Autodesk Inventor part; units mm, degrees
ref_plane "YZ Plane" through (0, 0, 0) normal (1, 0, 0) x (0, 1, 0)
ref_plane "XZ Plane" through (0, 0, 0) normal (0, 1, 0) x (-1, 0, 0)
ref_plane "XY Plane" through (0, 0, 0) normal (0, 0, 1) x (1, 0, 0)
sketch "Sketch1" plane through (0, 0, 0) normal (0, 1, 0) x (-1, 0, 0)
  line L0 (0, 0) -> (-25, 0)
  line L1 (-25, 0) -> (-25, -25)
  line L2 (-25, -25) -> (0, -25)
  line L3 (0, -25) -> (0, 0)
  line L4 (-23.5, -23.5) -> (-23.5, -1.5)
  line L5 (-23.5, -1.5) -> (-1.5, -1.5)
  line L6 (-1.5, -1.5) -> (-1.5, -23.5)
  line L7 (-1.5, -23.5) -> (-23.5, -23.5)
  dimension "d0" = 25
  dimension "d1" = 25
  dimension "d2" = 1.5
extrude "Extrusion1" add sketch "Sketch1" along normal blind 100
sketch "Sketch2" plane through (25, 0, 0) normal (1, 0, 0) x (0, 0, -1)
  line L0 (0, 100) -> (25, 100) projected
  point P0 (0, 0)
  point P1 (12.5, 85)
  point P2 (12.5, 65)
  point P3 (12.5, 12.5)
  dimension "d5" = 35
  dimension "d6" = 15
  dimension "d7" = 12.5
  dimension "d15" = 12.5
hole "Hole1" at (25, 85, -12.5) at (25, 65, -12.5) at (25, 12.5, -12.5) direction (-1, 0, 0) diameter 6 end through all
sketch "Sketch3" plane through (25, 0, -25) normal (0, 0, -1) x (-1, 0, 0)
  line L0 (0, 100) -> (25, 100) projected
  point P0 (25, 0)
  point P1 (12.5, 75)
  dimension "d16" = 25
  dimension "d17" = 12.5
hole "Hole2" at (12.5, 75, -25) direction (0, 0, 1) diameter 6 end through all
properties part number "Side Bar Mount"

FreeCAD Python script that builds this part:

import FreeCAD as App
import Part
import Sketcher

V = App.Vector


def add_polygon(sketch, points):
    """Adds a closed chain of lines whose ends are joined by coincident constraints."""
    first, n = sketch.GeometryCount, len(points)
    for a, b in zip(points, points[1:] + points[:1]):
        sketch.addGeometry(Part.LineSegment(App.Vector(*a, 0), App.Vector(*b, 0)), False)
    for i in range(n):
        sketch.addConstraint(Sketcher.Constraint("Coincident", first + i, 2, first + (i + 1) % n, 1))

doc = App.newDocument("Part")
body = doc.addObject("PartDesign::Body", "Body")

sketch1 = body.newObject("Sketcher::SketchObject", "Sketch")
sketch1.AttachmentSupport = (doc.getObject("XZ_Plane"), [""])
sketch1.MapMode = "FlatFace"
add_polygon(sketch1, [(0, -25), (0, 0), (25, 0), (25, -25)])
add_polygon(sketch1, [(1.5, -23.5), (23.5, -23.5), (23.5, -1.5), (1.5, -1.5)])
sketch1.addConstraint(Sketcher.Constraint("Vertical", 0))
sketch1.addConstraint(Sketcher.Constraint("Horizontal", 1))
sketch1.addConstraint(Sketcher.Constraint("Vertical", 2))
sketch1.addConstraint(Sketcher.Constraint("Horizontal", 3))
sketch1.addConstraint(Sketcher.Constraint("Horizontal", 4))
sketch1.addConstraint(Sketcher.Constraint("Vertical", 5))
sketch1.addConstraint(Sketcher.Constraint("Horizontal", 6))
sketch1.addConstraint(Sketcher.Constraint("Vertical", 7))
sketch1.addConstraint(Sketcher.Constraint("Coincident", 0, 2, -1, 1))
sketch1.addConstraint(Sketcher.Constraint("Equal", 3, 0))
sketch1.addConstraint(Sketcher.Constraint("Equal", 6, 5))
sketch1.addConstraint(Sketcher.Constraint("DistanceX", 1, 1, 1, 2, 25.0))
sketch1.addConstraint(Sketcher.Constraint("DistanceY", 5, 2, -1, 1, 1.5))
sketch1.addConstraint(Sketcher.Constraint("DistanceX", -1, 1, 6, 2, 1.5))
sketch1.addConstraint(Sketcher.Constraint("DistanceX", 4, 2, 2, 2, 1.5))
pad1 = body.newObject("PartDesign::Pad", "Pad")
pad1.Profile = sketch1
pad1.Length = 100
pad1.Reversed = True

sketch2 = body.newObject("Sketcher::SketchObject", "Sketch001")
sketch2.AttachmentSupport = (doc.getObject("YZ_Plane"), [""])
sketch2.MapMode = "FlatFace"
sketch2.AttachmentOffset = App.Placement(V(0, 0, 25), App.Rotation())
sketch2.addGeometry(Part.Circle(V(85, -12.5, 0), V(0, 0, 1), 3), False)
sketch2.addGeometry(Part.Circle(V(65, -12.5, 0), V(0, 0, 1), 3), False)
sketch2.addGeometry(Part.Circle(V(12.5, -12.5, 0), V(0, 0, 1), 3), False)
sketch2.addConstraint(Sketcher.Constraint("Equal", 0, 1))
sketch2.addConstraint(Sketcher.Constraint("Equal", 1, 2))
sketch2.addConstraint(Sketcher.Constraint("Horizontal", 0, 3, 1, 3))
sketch2.addConstraint(Sketcher.Constraint("Horizontal", 1, 3, 2, 3))
sketch2.addConstraint(Sketcher.Constraint("Diameter", 0, 6.0))
sketch2.addConstraint(Sketcher.Constraint("DistanceX", -1, 1, 0, 3, 85.0))
sketch2.addConstraint(Sketcher.Constraint("DistanceX", -1, 1, 1, 3, 65.0))
sketch2.addConstraint(Sketcher.Constraint("DistanceY", 0, 3, -1, 1, 12.5))
sketch2.addConstraint(Sketcher.Constraint("DistanceX", -1, 1, 2, 3, 12.5))
doc.recompute()
hole = body.newObject("PartDesign::Hole", "Hole")
hole.Profile = sketch2
hole.ThreadType = "None"
hole.Diameter = 6
hole.DepthType = "ThroughAll"

sketch3 = body.newObject("Sketcher::SketchObject", "Sketch002")
sketch3.AttachmentSupport = (doc.getObject("XY_Plane"), [""])
sketch3.MapMode = "FlatFace"
sketch3.AttachmentOffset = App.Placement(V(0, 0, -25), App.Rotation())
sketch3.addGeometry(Part.Circle(V(12.5, 75, 0), V(0, 0, 1), 3), False)
sketch3.addConstraint(Sketcher.Constraint("Diameter", 0, 6.0))
sketch3.addConstraint(Sketcher.Constraint("DistanceY", -1, 1, 0, 3, 75.0))
sketch3.addConstraint(Sketcher.Constraint("DistanceX", -1, 1, 0, 3, 12.5))
doc.recompute()
hole2 = body.newObject("PartDesign::Hole", "Hole001")
hole2.Profile = sketch3
hole2.ThreadType = "None"
hole2.Diameter = 6
hole2.DepthType = "ThroughAll"
hole2.Reversed = True

doc.recompute()
